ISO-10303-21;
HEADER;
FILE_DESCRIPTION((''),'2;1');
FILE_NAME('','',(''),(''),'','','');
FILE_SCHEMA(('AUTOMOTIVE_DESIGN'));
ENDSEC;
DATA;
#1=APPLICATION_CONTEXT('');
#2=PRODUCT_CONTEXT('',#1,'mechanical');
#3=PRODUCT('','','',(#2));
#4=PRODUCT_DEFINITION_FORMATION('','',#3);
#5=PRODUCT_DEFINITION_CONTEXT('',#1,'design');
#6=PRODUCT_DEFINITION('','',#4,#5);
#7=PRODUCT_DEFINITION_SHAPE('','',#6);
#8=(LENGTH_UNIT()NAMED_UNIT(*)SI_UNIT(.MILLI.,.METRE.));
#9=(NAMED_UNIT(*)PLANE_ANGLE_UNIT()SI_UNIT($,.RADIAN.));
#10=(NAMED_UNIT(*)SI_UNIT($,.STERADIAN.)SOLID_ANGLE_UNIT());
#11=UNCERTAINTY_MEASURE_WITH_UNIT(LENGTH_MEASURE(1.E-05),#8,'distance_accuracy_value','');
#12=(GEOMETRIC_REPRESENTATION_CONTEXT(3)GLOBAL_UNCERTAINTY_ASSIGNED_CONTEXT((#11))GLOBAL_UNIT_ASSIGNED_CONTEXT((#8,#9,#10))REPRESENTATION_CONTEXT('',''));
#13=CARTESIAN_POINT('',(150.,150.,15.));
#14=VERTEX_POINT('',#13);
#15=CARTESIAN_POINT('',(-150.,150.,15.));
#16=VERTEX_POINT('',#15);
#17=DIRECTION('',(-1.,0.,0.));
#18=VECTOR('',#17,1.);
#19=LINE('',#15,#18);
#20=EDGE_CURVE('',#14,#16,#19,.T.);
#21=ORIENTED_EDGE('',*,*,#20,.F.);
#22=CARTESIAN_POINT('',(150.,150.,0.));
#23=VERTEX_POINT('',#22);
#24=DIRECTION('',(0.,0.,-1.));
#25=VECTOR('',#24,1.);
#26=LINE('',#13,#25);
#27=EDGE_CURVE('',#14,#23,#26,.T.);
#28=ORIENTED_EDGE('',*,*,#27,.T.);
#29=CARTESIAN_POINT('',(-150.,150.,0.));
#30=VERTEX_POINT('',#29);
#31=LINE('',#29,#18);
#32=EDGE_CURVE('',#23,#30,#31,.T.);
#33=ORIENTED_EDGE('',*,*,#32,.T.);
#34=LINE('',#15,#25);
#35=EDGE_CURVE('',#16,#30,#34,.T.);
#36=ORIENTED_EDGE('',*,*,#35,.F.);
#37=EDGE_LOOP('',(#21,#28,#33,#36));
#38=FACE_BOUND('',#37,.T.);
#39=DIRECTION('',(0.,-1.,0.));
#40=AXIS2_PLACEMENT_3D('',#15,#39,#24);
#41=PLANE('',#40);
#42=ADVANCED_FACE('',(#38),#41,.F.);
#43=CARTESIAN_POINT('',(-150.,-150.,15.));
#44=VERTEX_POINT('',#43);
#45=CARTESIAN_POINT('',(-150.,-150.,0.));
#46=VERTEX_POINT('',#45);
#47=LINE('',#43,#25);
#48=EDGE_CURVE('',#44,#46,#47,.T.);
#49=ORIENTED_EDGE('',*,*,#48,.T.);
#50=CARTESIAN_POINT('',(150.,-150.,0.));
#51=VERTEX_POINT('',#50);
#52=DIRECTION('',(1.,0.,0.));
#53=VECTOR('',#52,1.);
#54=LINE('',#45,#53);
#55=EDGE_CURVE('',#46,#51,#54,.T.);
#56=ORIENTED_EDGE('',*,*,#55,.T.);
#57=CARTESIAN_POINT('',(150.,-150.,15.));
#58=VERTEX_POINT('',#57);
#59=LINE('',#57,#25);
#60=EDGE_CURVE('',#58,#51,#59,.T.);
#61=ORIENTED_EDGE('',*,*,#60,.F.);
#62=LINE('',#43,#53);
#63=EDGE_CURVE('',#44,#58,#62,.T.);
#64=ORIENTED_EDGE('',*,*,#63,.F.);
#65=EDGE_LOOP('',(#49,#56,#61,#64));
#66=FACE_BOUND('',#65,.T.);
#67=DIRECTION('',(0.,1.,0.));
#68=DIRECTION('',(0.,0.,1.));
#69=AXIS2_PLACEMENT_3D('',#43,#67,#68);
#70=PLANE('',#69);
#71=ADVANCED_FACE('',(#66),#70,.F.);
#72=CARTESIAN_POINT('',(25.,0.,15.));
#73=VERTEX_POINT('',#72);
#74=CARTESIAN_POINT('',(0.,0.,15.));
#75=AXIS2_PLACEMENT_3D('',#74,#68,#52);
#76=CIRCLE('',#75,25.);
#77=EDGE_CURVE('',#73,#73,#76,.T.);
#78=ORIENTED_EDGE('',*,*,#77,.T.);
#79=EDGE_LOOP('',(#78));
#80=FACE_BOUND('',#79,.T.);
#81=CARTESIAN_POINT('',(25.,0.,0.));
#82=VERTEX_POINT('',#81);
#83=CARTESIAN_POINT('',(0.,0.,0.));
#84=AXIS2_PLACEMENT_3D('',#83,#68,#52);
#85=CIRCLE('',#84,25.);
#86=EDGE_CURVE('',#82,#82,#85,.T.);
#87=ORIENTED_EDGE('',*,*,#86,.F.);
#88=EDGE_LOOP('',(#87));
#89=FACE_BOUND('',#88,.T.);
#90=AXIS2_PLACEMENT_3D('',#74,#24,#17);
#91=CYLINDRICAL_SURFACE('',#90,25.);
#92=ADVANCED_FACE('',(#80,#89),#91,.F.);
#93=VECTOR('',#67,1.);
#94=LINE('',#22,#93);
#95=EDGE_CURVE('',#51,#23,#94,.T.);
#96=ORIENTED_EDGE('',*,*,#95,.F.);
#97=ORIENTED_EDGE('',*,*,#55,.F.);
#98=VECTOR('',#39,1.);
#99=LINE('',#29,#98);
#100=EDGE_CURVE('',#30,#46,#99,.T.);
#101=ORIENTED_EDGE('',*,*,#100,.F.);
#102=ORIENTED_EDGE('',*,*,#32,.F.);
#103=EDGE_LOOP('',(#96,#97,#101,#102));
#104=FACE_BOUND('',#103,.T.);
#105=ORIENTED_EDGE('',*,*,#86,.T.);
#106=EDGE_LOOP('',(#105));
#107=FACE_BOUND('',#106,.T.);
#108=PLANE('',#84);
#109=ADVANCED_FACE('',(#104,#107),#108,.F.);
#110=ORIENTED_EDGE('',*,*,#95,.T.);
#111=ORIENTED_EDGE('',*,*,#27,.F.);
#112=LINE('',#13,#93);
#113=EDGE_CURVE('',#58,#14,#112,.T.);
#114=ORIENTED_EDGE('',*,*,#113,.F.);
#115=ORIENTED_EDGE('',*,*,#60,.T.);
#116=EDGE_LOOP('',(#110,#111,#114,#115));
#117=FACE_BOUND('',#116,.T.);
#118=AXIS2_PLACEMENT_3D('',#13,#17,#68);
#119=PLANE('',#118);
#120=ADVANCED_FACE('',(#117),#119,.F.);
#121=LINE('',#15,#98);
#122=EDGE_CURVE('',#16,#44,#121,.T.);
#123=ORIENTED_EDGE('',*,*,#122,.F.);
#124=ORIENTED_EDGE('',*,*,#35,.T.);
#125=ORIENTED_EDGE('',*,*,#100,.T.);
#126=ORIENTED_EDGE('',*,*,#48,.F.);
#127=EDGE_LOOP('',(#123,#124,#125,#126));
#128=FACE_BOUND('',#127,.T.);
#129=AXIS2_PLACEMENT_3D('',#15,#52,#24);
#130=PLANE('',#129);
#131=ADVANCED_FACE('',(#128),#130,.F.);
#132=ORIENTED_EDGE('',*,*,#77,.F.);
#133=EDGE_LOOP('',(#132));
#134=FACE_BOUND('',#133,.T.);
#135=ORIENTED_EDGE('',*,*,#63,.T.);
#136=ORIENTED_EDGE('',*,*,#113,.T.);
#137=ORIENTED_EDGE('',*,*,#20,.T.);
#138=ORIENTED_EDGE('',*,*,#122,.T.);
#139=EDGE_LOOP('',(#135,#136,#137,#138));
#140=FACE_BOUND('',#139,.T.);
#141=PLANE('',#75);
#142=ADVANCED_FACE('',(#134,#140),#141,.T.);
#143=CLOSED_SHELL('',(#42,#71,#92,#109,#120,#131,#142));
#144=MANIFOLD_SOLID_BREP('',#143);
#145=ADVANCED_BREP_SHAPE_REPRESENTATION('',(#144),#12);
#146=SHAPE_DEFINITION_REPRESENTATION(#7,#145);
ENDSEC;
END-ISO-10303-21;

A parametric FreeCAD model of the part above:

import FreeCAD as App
import Part
import Sketcher
from FreeCAD import Vector
Q = App.Units.Quantity

doc = App.newDocument("Part")
body = doc.addObject("PartDesign::Body", "Body")

# Sketch on XY plane
sketch1 = body.newObject("Sketcher::SketchObject", "Sketch")
sketch1.AttachmentSupport = (doc.getObject("XY_Plane"), [""])
sketch1.MapMode = "FlatFace"
sketch1.addGeometry(Part.LineSegment(Vector(-150, 150, 0), Vector(-150, -150, 0)), False)
sketch1.addGeometry(Part.LineSegment(Vector(-150, -150, 0), Vector(150, -150, 0)), False)
sketch1.addGeometry(Part.LineSegment(Vector(150, -150, 0), Vector(150, 150, 0)), False)
sketch1.addGeometry(Part.LineSegment(Vector(150, 150, 0), Vector(-150, 150, 0)), False)
sketch1.addGeometry(Part.Circle(Vector(0, 0, 0), Vector(0, 0, 1), 25), False)
sketch1.addConstraint(Sketcher.Constraint("Coincident", 0, 2, 1, 1))
sketch1.addConstraint(Sketcher.Constraint("Coincident", 1, 2, 2, 1))
sketch1.addConstraint(Sketcher.Constraint("Coincident", 2, 2, 3, 1))
sketch1.addConstraint(Sketcher.Constraint("Coincident", 3, 2, 0, 1))
sketch1.addConstraint(Sketcher.Constraint("Vertical", 0))
sketch1.addConstraint(Sketcher.Constraint("Horizontal", 1))
sketch1.addConstraint(Sketcher.Constraint("Vertical", 2))
sketch1.addConstraint(Sketcher.Constraint("Horizontal", 3))
sketch1.addConstraint(Sketcher.Constraint("Coincident", 4, 3, -1, 1))
sketch1.addConstraint(Sketcher.Constraint("Symmetric", 0, 2, 2, 2, -1, 1))
sketch1.addConstraint(Sketcher.Constraint("Equal", 3, 0))
sketch1.addConstraint(Sketcher.Constraint("Diameter", 4, Q("50 mm")))
sketch1.addConstraint(Sketcher.Constraint("DistanceX", 1, 1, 1, 2, Q("300 mm")))
pad1 = body.newObject("PartDesign::Pad", "Pad")
pad1.Profile = sketch1
pad1.Length = 15

doc.recompute()
